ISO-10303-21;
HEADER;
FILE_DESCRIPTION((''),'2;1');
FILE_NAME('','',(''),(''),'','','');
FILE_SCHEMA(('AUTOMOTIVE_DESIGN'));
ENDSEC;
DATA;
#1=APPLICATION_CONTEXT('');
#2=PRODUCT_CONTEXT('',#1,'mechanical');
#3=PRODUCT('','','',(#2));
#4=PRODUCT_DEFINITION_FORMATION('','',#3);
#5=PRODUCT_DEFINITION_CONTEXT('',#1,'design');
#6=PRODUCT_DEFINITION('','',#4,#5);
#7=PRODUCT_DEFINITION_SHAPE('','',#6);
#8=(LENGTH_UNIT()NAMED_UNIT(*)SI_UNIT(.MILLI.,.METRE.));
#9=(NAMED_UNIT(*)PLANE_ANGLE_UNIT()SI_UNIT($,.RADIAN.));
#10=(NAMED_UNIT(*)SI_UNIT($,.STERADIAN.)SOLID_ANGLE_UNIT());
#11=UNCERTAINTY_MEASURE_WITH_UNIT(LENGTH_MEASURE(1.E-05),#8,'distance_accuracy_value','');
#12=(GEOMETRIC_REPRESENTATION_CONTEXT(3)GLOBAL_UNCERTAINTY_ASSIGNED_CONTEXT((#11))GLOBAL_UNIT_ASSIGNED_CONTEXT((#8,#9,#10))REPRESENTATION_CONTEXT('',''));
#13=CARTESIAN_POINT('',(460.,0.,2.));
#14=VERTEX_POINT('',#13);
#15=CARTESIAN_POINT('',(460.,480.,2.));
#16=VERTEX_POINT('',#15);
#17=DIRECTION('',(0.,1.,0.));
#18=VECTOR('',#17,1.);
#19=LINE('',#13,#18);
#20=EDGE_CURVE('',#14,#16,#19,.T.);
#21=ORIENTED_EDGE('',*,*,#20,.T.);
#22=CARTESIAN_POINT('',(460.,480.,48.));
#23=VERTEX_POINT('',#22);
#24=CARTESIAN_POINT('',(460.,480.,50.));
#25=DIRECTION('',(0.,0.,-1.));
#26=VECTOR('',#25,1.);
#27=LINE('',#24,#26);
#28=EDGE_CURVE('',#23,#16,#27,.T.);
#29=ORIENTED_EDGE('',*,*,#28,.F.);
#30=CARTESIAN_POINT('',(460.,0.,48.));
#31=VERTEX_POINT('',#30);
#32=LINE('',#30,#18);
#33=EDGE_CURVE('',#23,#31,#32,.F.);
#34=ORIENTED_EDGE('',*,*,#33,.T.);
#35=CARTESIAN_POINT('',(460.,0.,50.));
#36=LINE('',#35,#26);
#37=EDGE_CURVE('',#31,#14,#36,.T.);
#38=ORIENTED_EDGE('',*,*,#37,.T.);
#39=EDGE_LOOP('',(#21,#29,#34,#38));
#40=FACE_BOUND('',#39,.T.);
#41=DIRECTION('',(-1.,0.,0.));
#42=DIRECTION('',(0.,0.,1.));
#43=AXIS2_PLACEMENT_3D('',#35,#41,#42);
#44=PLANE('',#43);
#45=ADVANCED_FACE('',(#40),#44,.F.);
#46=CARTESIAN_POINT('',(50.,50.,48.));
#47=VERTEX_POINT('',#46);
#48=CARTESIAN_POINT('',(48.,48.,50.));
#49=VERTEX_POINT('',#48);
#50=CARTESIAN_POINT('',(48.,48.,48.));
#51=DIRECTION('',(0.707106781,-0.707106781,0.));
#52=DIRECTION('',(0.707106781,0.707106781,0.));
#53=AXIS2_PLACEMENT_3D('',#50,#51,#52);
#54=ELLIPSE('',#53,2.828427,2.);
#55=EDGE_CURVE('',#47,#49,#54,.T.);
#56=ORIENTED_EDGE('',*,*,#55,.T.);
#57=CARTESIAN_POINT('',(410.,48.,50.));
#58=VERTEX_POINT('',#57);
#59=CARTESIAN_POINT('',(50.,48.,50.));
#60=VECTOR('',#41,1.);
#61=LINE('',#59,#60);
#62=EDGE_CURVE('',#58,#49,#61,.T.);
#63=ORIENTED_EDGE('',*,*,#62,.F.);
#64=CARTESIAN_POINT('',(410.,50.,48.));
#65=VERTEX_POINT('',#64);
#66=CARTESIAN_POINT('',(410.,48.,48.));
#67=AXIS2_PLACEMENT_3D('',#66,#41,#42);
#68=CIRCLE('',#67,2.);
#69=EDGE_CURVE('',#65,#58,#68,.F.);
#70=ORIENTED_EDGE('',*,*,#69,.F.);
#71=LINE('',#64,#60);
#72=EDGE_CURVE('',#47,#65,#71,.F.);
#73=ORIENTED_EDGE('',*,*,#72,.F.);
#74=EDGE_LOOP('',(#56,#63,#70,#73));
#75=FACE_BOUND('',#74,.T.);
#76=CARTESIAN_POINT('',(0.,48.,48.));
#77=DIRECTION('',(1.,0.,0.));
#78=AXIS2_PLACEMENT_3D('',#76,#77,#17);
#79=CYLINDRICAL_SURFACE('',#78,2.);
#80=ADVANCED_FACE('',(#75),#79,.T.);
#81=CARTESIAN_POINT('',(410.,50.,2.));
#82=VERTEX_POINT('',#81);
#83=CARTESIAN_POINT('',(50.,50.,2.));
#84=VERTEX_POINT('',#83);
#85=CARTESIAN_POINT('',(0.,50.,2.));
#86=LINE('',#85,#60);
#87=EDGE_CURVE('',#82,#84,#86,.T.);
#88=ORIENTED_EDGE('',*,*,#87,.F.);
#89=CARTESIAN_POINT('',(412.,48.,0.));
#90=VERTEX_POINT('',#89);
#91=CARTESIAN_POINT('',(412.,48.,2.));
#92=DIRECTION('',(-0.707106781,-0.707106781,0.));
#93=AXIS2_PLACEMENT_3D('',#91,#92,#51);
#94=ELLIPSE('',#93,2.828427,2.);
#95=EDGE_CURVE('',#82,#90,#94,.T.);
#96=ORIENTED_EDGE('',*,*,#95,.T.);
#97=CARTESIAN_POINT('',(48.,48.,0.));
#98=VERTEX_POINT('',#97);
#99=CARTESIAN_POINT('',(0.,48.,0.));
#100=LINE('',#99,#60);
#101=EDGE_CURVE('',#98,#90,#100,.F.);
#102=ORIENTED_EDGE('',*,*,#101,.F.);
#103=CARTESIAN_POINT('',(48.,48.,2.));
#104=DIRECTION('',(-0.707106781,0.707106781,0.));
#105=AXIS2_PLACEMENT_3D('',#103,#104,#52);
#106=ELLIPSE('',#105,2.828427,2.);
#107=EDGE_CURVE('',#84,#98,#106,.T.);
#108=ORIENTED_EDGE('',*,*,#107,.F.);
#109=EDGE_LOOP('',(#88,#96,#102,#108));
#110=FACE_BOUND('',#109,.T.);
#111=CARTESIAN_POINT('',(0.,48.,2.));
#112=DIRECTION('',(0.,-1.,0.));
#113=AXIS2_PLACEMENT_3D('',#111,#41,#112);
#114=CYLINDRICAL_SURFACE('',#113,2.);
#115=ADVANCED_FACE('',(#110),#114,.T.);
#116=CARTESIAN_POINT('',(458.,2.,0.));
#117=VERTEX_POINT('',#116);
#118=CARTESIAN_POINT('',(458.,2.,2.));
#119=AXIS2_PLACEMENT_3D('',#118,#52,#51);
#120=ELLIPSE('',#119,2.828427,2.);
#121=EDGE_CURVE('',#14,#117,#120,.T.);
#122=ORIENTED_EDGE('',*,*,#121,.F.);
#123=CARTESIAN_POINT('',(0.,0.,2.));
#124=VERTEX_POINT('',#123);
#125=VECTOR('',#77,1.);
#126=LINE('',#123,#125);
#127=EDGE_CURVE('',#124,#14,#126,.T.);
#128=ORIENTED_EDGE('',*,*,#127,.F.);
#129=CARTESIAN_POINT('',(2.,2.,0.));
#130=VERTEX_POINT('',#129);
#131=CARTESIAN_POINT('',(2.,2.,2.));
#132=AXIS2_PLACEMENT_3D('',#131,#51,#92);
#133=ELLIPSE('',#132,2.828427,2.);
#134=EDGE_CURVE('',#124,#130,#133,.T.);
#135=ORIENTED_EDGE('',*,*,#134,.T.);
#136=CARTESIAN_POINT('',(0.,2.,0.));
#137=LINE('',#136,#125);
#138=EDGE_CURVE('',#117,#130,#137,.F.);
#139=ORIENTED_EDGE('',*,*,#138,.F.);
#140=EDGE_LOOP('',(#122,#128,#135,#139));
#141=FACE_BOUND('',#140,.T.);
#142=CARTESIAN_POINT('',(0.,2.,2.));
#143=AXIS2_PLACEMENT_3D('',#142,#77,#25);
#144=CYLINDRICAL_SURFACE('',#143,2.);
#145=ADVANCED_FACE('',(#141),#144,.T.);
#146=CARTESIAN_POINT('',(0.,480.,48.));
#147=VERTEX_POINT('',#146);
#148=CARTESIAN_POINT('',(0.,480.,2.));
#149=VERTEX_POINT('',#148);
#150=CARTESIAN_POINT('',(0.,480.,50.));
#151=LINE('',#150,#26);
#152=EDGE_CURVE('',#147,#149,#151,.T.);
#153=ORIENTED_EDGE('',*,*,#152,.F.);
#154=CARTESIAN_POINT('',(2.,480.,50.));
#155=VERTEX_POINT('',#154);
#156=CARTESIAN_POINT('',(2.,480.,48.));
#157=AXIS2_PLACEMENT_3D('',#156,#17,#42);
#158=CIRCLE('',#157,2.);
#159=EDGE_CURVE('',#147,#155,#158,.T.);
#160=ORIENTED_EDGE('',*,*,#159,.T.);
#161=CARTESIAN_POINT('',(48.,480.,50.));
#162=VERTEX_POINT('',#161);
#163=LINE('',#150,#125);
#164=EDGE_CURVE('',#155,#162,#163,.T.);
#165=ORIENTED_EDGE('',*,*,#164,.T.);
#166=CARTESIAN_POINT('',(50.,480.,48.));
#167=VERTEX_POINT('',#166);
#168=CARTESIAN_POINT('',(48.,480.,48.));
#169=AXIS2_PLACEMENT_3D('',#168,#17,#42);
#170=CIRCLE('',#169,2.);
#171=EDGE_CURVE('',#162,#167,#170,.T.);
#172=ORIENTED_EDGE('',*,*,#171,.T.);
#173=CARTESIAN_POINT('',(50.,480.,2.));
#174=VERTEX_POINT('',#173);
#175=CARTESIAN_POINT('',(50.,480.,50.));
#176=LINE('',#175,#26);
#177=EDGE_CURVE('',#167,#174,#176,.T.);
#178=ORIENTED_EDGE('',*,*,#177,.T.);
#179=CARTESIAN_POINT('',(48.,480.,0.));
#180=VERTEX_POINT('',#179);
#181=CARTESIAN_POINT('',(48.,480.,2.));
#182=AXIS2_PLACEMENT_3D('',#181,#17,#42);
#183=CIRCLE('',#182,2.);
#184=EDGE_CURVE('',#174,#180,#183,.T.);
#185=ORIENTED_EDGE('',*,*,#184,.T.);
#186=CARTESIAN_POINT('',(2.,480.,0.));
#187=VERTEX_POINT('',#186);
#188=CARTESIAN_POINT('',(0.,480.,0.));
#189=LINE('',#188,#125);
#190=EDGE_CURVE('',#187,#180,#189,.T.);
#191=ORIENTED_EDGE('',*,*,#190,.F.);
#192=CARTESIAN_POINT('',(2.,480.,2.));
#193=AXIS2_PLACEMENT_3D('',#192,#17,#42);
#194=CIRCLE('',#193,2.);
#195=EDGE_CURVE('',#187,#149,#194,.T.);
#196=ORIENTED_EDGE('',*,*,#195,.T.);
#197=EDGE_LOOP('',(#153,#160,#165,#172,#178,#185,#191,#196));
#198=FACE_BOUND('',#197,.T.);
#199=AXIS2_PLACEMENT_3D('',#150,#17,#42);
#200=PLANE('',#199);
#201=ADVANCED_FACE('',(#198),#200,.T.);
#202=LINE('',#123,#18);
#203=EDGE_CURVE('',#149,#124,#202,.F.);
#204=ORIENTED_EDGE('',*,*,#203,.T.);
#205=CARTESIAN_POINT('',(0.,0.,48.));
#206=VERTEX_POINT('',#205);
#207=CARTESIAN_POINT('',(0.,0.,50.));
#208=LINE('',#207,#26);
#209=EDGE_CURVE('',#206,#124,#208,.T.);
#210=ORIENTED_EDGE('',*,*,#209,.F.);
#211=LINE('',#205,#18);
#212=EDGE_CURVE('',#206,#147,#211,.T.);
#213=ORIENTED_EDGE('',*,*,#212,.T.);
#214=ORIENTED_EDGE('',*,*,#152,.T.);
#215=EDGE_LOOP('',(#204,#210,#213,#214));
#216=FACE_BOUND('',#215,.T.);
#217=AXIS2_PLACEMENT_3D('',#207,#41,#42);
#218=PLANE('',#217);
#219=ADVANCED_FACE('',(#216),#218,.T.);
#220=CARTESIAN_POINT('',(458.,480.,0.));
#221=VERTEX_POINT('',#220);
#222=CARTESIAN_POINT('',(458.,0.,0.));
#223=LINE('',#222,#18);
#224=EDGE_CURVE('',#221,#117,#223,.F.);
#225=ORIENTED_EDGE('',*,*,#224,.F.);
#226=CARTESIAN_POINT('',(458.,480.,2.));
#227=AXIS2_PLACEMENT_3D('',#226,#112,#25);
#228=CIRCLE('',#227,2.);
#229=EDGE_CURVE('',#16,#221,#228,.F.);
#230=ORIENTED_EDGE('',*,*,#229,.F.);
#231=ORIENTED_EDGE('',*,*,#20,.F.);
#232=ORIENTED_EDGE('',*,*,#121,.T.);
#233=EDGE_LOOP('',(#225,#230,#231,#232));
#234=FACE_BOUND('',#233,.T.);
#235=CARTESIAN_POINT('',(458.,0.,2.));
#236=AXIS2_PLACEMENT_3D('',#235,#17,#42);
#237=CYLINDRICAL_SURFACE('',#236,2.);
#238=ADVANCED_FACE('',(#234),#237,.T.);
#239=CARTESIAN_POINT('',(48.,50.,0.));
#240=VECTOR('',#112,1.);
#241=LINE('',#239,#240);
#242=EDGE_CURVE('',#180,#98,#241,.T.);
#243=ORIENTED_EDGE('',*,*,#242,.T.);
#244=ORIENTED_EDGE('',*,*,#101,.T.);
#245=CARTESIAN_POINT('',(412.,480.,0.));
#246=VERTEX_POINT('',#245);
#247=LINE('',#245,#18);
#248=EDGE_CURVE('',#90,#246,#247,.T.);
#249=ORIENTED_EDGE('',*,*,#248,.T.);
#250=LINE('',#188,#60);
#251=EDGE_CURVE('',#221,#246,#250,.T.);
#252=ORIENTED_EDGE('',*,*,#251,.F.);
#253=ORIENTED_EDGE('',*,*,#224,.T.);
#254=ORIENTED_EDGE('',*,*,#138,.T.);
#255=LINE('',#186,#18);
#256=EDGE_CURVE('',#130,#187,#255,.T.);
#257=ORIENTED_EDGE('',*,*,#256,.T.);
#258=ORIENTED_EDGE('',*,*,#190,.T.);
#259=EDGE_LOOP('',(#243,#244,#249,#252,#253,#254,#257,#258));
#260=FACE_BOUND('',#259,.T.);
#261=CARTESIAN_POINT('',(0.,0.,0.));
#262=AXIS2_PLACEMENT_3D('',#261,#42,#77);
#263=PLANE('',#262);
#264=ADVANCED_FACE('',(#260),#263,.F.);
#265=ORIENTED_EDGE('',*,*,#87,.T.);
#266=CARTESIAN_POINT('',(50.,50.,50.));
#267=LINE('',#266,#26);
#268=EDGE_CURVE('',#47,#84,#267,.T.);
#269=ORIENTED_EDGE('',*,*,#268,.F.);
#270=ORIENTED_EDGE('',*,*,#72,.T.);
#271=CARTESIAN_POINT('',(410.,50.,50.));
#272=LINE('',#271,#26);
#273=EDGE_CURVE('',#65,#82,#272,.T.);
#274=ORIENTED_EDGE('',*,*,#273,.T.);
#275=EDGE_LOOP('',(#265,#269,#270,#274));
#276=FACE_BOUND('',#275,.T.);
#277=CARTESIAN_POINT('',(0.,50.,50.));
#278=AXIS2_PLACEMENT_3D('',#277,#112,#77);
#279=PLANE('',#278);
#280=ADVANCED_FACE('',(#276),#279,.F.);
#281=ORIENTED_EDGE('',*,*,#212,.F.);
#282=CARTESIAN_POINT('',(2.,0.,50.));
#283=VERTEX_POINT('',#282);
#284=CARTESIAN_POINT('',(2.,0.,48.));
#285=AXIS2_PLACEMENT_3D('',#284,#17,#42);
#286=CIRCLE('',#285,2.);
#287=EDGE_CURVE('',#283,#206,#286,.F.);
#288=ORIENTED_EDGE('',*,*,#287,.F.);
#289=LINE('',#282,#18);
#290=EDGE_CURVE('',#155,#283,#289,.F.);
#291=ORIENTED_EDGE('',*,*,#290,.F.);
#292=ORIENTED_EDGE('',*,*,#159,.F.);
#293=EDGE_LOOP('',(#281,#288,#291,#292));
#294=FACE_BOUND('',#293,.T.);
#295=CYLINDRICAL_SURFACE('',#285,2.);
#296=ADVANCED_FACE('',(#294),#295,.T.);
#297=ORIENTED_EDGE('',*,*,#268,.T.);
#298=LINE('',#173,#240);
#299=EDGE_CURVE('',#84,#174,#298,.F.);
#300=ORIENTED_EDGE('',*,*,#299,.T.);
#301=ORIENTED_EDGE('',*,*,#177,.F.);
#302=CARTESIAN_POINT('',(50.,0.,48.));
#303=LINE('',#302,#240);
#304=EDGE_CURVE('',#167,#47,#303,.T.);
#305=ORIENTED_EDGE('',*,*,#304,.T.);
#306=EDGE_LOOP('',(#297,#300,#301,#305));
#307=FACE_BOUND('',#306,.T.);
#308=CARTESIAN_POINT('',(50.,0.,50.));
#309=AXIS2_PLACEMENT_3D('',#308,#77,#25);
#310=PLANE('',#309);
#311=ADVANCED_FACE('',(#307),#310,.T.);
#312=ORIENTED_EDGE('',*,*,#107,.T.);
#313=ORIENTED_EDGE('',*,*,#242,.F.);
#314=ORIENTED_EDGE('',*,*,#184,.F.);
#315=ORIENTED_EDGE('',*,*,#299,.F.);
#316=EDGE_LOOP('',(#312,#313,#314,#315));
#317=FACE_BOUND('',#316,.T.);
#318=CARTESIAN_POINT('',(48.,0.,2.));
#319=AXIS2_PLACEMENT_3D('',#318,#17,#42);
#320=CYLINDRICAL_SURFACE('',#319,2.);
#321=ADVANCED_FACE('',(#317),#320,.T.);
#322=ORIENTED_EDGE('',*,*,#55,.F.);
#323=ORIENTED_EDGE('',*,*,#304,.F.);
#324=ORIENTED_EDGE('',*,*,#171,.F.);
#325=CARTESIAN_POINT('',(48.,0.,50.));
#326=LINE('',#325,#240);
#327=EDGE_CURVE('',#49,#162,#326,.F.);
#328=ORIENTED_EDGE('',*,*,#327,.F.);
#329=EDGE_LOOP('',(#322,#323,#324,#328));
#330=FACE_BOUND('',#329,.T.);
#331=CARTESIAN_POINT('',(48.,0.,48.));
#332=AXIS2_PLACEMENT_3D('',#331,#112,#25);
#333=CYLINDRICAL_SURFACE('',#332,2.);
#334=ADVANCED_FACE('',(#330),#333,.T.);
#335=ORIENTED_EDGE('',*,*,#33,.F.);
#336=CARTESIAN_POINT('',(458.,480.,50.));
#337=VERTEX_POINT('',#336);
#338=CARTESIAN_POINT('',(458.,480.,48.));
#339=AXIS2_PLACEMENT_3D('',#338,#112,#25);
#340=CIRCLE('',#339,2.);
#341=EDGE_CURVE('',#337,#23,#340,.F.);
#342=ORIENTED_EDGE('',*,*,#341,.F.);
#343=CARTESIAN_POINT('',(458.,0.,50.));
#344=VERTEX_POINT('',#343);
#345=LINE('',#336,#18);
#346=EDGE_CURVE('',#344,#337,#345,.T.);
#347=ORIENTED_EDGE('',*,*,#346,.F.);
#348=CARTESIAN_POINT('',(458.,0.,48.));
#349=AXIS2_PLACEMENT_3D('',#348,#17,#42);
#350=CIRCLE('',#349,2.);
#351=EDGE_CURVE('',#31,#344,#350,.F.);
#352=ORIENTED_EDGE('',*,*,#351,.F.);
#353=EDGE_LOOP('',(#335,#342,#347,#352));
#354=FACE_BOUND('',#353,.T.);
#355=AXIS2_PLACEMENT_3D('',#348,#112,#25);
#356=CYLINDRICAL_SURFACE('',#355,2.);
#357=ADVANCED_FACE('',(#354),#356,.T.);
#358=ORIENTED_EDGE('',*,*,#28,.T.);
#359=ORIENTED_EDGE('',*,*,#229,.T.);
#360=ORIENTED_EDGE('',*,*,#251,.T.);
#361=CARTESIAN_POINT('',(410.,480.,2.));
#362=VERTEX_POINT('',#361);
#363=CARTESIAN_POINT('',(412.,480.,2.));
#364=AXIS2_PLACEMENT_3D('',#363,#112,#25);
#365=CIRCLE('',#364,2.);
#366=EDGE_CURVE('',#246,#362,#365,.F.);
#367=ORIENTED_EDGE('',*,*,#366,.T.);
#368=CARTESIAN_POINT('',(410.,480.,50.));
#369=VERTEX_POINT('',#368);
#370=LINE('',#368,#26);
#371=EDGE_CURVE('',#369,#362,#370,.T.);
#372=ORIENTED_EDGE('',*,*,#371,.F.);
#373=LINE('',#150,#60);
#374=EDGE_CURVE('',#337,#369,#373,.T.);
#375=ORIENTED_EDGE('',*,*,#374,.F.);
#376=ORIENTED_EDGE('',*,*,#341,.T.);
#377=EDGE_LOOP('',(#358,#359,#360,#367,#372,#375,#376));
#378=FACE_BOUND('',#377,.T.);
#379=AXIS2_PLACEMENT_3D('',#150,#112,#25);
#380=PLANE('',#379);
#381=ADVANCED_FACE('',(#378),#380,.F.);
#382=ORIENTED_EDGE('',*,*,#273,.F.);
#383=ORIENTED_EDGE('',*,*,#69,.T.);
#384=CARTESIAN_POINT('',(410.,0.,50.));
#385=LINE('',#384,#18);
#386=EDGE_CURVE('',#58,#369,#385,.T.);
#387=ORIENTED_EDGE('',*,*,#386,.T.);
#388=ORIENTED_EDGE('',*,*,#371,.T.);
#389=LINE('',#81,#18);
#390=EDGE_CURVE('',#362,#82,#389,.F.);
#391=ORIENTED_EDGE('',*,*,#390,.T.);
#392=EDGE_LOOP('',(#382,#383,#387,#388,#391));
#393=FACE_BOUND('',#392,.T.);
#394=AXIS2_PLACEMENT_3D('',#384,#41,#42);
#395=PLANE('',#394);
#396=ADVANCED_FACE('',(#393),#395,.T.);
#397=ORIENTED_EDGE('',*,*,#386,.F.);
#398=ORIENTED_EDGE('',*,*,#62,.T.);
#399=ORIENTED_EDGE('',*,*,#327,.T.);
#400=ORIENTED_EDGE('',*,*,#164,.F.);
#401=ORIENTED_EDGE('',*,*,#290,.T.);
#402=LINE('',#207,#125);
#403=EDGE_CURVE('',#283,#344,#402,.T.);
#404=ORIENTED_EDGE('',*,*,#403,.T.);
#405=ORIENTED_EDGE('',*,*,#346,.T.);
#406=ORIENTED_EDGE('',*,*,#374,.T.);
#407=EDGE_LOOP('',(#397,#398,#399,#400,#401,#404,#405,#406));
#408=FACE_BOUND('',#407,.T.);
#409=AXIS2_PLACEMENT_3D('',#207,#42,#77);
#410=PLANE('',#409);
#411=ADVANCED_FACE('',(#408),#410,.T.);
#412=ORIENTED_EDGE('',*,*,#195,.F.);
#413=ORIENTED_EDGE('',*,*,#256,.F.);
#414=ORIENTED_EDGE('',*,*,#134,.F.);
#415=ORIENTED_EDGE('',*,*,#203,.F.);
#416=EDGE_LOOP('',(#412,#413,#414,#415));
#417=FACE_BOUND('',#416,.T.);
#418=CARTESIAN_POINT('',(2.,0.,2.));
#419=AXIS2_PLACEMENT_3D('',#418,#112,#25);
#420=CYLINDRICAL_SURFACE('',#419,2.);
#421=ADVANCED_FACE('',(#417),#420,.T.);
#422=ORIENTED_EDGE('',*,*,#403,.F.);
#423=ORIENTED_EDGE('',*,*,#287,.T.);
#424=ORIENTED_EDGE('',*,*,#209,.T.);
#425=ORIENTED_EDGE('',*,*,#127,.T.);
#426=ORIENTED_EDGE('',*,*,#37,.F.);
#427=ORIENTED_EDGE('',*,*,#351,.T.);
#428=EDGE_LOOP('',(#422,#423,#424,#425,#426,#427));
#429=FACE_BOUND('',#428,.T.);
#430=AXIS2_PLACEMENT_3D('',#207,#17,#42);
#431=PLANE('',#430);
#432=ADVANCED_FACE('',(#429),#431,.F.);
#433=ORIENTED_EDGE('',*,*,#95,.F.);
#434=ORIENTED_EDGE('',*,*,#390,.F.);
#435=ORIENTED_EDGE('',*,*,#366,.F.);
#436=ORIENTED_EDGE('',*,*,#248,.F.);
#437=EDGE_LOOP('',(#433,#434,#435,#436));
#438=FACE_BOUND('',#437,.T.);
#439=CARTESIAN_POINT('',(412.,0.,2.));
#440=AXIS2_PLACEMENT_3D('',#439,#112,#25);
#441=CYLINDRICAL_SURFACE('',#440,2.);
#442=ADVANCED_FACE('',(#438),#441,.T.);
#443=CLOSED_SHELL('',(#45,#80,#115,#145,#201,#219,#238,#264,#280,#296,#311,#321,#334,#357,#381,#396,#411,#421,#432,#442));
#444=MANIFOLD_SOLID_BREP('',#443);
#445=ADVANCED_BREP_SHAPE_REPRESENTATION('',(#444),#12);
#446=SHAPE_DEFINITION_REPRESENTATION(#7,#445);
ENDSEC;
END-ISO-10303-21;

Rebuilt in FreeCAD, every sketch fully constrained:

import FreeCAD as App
import Part
import Sketcher

V = App.Vector
Q = App.Units.Quantity


def edges_at(feature, points):
    """Names of the edges that pass closest to the given points."""
    edges = feature.Shape.Edges
    near = lambda p: min(range(len(edges)), key=lambda i: edges[i].distToShape(Part.Vertex(*p))[0])
    return sorted({f"Edge{near(p) + 1}" for p in points})

doc = App.newDocument("Part")
body = doc.addObject("PartDesign::Body", "Body")

sketch1 = body.newObject("Sketcher::SketchObject", "Sketch")
sketch1.AttachmentSupport = (doc.getObject("XY_Plane"), [""])
sketch1.MapMode = "FlatFace"
sketch1.addGeometry(Part.LineSegment(V(410, 480, 0), V(410, 50, 0)), False)
sketch1.addGeometry(Part.LineSegment(V(410, 50, 0), V(50, 50, 0)), False)
sketch1.addGeometry(Part.LineSegment(V(50, 50, 0), V(50, 480, 0)), False)
sketch1.addGeometry(Part.LineSegment(V(50, 480, 0), V(0, 480, 0)), False)
sketch1.addGeometry(Part.LineSegment(V(0, 480, 0), V(0, 0, 0)), False)
sketch1.addGeometry(Part.LineSegment(V(0, 0, 0), V(460, 0, 0)), False)
sketch1.addGeometry(Part.LineSegment(V(460, 0, 0), V(460, 480, 0)), False)
sketch1.addGeometry(Part.LineSegment(V(460, 480, 0), V(410, 480, 0)), False)
sketch1.addConstraint(Sketcher.Constraint("Coincident", 0, 2, 1, 1))
sketch1.addConstraint(Sketcher.Constraint("Coincident", 1, 2, 2, 1))
sketch1.addConstraint(Sketcher.Constraint("Coincident", 2, 2, 3, 1))
sketch1.addConstraint(Sketcher.Constraint("Coincident", 3, 2, 4, 1))
sketch1.addConstraint(Sketcher.Constraint("Coincident", 4, 2, 5, 1))
sketch1.addConstraint(Sketcher.Constraint("Coincident", 5, 2, 6, 1))
sketch1.addConstraint(Sketcher.Constraint("Coincident", 6, 2, 7, 1))
sketch1.addConstraint(Sketcher.Constraint("Coincident", 7, 2, 0, 1))
sketch1.addConstraint(Sketcher.Constraint("Vertical", 0))
sketch1.addConstraint(Sketcher.Constraint("Horizontal", 1))
sketch1.addConstraint(Sketcher.Constraint("Vertical", 2))
sketch1.addConstraint(Sketcher.Constraint("Horizontal", 3))
sketch1.addConstraint(Sketcher.Constraint("Vertical", 4))
sketch1.addConstraint(Sketcher.Constraint("Horizontal", 5))
sketch1.addConstraint(Sketcher.Constraint("Vertical", 6))
sketch1.addConstraint(Sketcher.Constraint("Horizontal", 7))
sketch1.addConstraint(Sketcher.Constraint("Coincident", 4, 2, -1, 1))
sketch1.addConstraint(Sketcher.Constraint("Horizontal", 3, 2, 6, 2))
sketch1.addConstraint(Sketcher.Constraint("Equal", 3, 7))
sketch1.addConstraint(Sketcher.Constraint("DistanceX", 1, 2, 1, 1, Q("360 mm")))
sketch1.addConstraint(Sketcher.Constraint("DistanceX", 3, 2, 3, 1, Q("50 mm")))
sketch1.addConstraint(Sketcher.Constraint("DistanceY", 0, 2, 0, 1, Q("430 mm")))
sketch1.addConstraint(Sketcher.Constraint("DistanceY", 4, 2, 4, 1, Q("480 mm")))
pad1 = body.newObject("PartDesign::Pad", "Pad")
pad1.Profile = sketch1
pad1.Length = 50
doc.recompute()

fillet = body.newObject("PartDesign::Fillet", "Fillet")
fillet.Base = (pad1, edges_at(pad1, [
    (460, 240, 0),
    (230, 0, 0),
    (0, 240, 0),
    (50, 265, 0),
    (0, 240, 50),
    (460, 240, 50),
    (230, 50, 50),
    (50, 265, 50),
    (230, 50, 0),
    (410, 265, 0),
]))
fillet.Radius = 2

doc.recompute()
